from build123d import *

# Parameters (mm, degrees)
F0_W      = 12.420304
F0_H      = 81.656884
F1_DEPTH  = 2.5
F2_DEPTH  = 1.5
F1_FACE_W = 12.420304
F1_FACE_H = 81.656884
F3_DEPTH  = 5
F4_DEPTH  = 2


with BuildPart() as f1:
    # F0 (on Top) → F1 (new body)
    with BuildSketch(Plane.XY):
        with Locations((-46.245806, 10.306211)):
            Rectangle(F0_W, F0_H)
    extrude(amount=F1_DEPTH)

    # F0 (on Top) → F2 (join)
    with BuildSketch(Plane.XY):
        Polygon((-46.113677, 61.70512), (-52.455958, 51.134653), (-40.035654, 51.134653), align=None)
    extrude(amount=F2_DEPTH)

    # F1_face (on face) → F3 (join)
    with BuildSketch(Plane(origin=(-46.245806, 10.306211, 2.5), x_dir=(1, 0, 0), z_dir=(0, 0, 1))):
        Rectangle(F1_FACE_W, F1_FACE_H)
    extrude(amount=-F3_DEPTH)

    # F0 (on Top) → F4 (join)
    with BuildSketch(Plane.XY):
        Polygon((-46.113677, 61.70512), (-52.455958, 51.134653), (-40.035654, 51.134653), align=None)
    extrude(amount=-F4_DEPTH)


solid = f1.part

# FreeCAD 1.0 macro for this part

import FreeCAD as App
import Part
import Sketcher
Q = App.Units.Quantity

doc = App.newDocument("Part")
body = doc.addObject("PartDesign::Body", "Body")

# Sketch on XY plane
sketch1 = doc.addObject("Sketcher::SketchObject", "Sketch")
body.addObject(sketch1)
sketch1.AttachmentSupport = (doc.XY_Plane, [""])
sketch1.MapMode = "FlatFace"
sketch1.addGeometry(Part.LineSegment(App.Vector(-52, 51, 0), App.Vector(-52, -31, 0)), False)
sketch1.addGeometry(Part.LineSegment(App.Vector(-52, -31, 0), App.Vector(-40, -31, 0)), False)
sketch1.addGeometry(Part.LineSegment(App.Vector(-40, -31, 0), App.Vector(-40, 51, 0)), False)
sketch1.addGeometry(Part.LineSegment(App.Vector(-40, 51, 0), App.Vector(-52, 51, 0)), False)
sketch1.addConstraint(Sketcher.Constraint("Coincident", 0, 2, 1, 1))
sketch1.addConstraint(Sketcher.Constraint("Coincident", 1, 2, 2, 1))
sketch1.addConstraint(Sketcher.Constraint("Coincident", 2, 2, 3, 1))
sketch1.addConstraint(Sketcher.Constraint("Coincident", 3, 2, 0, 1))
sketch1.addConstraint(Sketcher.Constraint("Vertical", 0))
sketch1.addConstraint(Sketcher.Constraint("Horizontal", 1))
sketch1.addConstraint(Sketcher.Constraint("Vertical", 2))
sketch1.addConstraint(Sketcher.Constraint("Horizontal", 3))
sketch1.addConstraint(Sketcher.Constraint("DistanceX", 1, 1, 1, 2, Q("12.420304 mm")))
sketch1.addConstraint(Sketcher.Constraint("DistanceY", 0, 2, 0, 1, Q("81.656884 mm")))
sketch1.addConstraint(Sketcher.Constraint("DistanceX", 0, 2, -1, 1, Q("52.455958 mm")))
sketch1.addConstraint(Sketcher.Constraint("DistanceY", 0, 2, -1, 1, Q("30.522231 mm")))
pad1 = doc.addObject("PartDesign::Pad", "Pad")
body.addObject(pad1)
pad1.Profile = sketch1
pad1.Length = 2.5

# Sketch on XY plane
sketch2 = doc.addObject("Sketcher::SketchObject", "Sketch001")
body.addObject(sketch2)
sketch2.AttachmentSupport = (doc.XY_Plane, [""])
sketch2.MapMode = "FlatFace"
sketch2.addGeometry(Part.LineSegment(App.Vector(-46, 62, 0), App.Vector(-52, 51, 0)), False)
sketch2.addGeometry(Part.LineSegment(App.Vector(-52, 51, 0), App.Vector(-40, 51, 0)), False)
sketch2.addGeometry(Part.LineSegment(App.Vector(-40, 51, 0), App.Vector(-46, 62, 0)), False)
sketch2.addConstraint(Sketcher.Constraint("Coincident", 0, 2, 1, 1))
sketch2.addConstraint(Sketcher.Constraint("Coincident", 1, 2, 2, 1))
sketch2.addConstraint(Sketcher.Constraint("Coincident", 2, 2, 0, 1))
sketch2.addConstraint(Sketcher.Constraint("Horizontal", 1))
sketch2.addConstraint(Sketcher.Constraint("DistanceX", 1, 1, 1, 2, Q("12.420304 mm")))
sketch2.addConstraint(Sketcher.Constraint("DistanceX", 0, 2, -1, 1, Q("52.455958 mm")))
sketch2.addConstraint(Sketcher.Constraint("DistanceY", -1, 1, 2, 2, Q("61.70512 mm")))
sketch2.addConstraint(Sketcher.Constraint("DistanceX", 0, 2, 2, 2, Q("6.342281 mm")))
sketch2.addConstraint(Sketcher.Constraint("Distance", 0, Q("12.327177 mm")))
pad2 = doc.addObject("PartDesign::Pad", "Pad001")
body.addObject(pad2)
pad2.Profile = sketch2
pad2.Length = 1.5

# Sketch on XY plane
sketch3 = doc.addObject("Sketcher::SketchObject", "Sketch002")
body.addObject(sketch3)
sketch3.AttachmentSupport = (doc.XY_Plane, [""])
sketch3.MapMode = "FlatFace"
sketch3.AttachmentOffset = App.Placement(App.Vector(0, 0, 2.5), App.Rotation())
sketch3.addGeometry(Part.LineSegment(App.Vector(-52, 51, 0), App.Vector(-52, -31, 0)), False)
sketch3.addGeometry(Part.LineSegment(App.Vector(-52, -31, 0), App.Vector(-40, -31, 0)), False)
sketch3.addGeometry(Part.LineSegment(App.Vector(-40, -31, 0), App.Vector(-40, 51, 0)), False)
sketch3.addGeometry(Part.LineSegment(App.Vector(-40, 51, 0), App.Vector(-52, 51, 0)), False)
sketch3.addConstraint(Sketcher.Constraint("Coincident", 0, 2, 1, 1))
sketch3.addConstraint(Sketcher.Constraint("Coincident", 1, 2, 2, 1))
sketch3.addConstraint(Sketcher.Constraint("Coincident", 2, 2, 3, 1))
sketch3.addConstraint(Sketcher.Constraint("Coincident", 3, 2, 0, 1))
sketch3.addConstraint(Sketcher.Constraint("Vertical", 0))
sketch3.addConstraint(Sketcher.Constraint("Horizontal", 1))
sketch3.addConstraint(Sketcher.Constraint("Vertical", 2))
sketch3.addConstraint(Sketcher.Constraint("Horizontal", 3))
sketch3.addConstraint(Sketcher.Constraint("DistanceX", 1, 1, 1, 2, Q("12.420304 mm")))
sketch3.addConstraint(Sketcher.Constraint("DistanceY", 0, 2, 0, 1, Q("81.656884 mm")))
sketch3.addConstraint(Sketcher.Constraint("DistanceX", 0, 2, -1, 1, Q("52.455958 mm")))
sketch3.addConstraint(Sketcher.Constraint("DistanceY", 0, 2, -1, 1, Q("30.522231 mm")))
pad3 = doc.addObject("PartDesign::Pad", "Pad002")
body.addObject(pad3)
pad3.Profile = sketch3
pad3.Length = 5
pad3.Reversed = True

# Sketch on XY plane
sketch4 = doc.addObject("Sketcher::SketchObject", "Sketch003")
body.addObject(sketch4)
sketch4.AttachmentSupport = (doc.XY_Plane, [""])
sketch4.MapMode = "FlatFace"
sketch4.addGeometry(Part.LineSegment(App.Vector(-46, 62, 0), App.Vector(-52, 51, 0)), False)
sketch4.addGeometry(Part.LineSegment(App.Vector(-52, 51, 0), App.Vector(-40, 51, 0)), False)
sketch4.addGeometry(Part.LineSegment(App.Vector(-40, 51, 0), App.Vector(-46, 62, 0)), False)
sketch4.addConstraint(Sketcher.Constraint("Coincident", 0, 2, 1, 1))
sketch4.addConstraint(Sketcher.Constraint("Coincident", 1, 2, 2, 1))
sketch4.addConstraint(Sketcher.Constraint("Coincident", 2, 2, 0, 1))
sketch4.addConstraint(Sketcher.Constraint("Horizontal", 1))
sketch4.addConstraint(Sketcher.Constraint("DistanceX", 1, 1, 1, 2, Q("12.420304 mm")))
sketch4.addConstraint(Sketcher.Constraint("DistanceX", 0, 2, -1, 1, Q("52.455958 mm")))
sketch4.addConstraint(Sketcher.Constraint("DistanceY", -1, 1, 2, 2, Q("61.70512 mm")))
sketch4.addConstraint(Sketcher.Constraint("DistanceX", 0, 2, 2, 2, Q("6.342281 mm")))
sketch4.addConstraint(Sketcher.Constraint("Distance", 0, Q("12.327177 mm")))
pad4 = doc.addObject("PartDesign::Pad", "Pad003")
body.addObject(pad4)
pad4.Profile = sketch4
pad4.Length = 2
pad4.Reversed = True

doc.recompute()
